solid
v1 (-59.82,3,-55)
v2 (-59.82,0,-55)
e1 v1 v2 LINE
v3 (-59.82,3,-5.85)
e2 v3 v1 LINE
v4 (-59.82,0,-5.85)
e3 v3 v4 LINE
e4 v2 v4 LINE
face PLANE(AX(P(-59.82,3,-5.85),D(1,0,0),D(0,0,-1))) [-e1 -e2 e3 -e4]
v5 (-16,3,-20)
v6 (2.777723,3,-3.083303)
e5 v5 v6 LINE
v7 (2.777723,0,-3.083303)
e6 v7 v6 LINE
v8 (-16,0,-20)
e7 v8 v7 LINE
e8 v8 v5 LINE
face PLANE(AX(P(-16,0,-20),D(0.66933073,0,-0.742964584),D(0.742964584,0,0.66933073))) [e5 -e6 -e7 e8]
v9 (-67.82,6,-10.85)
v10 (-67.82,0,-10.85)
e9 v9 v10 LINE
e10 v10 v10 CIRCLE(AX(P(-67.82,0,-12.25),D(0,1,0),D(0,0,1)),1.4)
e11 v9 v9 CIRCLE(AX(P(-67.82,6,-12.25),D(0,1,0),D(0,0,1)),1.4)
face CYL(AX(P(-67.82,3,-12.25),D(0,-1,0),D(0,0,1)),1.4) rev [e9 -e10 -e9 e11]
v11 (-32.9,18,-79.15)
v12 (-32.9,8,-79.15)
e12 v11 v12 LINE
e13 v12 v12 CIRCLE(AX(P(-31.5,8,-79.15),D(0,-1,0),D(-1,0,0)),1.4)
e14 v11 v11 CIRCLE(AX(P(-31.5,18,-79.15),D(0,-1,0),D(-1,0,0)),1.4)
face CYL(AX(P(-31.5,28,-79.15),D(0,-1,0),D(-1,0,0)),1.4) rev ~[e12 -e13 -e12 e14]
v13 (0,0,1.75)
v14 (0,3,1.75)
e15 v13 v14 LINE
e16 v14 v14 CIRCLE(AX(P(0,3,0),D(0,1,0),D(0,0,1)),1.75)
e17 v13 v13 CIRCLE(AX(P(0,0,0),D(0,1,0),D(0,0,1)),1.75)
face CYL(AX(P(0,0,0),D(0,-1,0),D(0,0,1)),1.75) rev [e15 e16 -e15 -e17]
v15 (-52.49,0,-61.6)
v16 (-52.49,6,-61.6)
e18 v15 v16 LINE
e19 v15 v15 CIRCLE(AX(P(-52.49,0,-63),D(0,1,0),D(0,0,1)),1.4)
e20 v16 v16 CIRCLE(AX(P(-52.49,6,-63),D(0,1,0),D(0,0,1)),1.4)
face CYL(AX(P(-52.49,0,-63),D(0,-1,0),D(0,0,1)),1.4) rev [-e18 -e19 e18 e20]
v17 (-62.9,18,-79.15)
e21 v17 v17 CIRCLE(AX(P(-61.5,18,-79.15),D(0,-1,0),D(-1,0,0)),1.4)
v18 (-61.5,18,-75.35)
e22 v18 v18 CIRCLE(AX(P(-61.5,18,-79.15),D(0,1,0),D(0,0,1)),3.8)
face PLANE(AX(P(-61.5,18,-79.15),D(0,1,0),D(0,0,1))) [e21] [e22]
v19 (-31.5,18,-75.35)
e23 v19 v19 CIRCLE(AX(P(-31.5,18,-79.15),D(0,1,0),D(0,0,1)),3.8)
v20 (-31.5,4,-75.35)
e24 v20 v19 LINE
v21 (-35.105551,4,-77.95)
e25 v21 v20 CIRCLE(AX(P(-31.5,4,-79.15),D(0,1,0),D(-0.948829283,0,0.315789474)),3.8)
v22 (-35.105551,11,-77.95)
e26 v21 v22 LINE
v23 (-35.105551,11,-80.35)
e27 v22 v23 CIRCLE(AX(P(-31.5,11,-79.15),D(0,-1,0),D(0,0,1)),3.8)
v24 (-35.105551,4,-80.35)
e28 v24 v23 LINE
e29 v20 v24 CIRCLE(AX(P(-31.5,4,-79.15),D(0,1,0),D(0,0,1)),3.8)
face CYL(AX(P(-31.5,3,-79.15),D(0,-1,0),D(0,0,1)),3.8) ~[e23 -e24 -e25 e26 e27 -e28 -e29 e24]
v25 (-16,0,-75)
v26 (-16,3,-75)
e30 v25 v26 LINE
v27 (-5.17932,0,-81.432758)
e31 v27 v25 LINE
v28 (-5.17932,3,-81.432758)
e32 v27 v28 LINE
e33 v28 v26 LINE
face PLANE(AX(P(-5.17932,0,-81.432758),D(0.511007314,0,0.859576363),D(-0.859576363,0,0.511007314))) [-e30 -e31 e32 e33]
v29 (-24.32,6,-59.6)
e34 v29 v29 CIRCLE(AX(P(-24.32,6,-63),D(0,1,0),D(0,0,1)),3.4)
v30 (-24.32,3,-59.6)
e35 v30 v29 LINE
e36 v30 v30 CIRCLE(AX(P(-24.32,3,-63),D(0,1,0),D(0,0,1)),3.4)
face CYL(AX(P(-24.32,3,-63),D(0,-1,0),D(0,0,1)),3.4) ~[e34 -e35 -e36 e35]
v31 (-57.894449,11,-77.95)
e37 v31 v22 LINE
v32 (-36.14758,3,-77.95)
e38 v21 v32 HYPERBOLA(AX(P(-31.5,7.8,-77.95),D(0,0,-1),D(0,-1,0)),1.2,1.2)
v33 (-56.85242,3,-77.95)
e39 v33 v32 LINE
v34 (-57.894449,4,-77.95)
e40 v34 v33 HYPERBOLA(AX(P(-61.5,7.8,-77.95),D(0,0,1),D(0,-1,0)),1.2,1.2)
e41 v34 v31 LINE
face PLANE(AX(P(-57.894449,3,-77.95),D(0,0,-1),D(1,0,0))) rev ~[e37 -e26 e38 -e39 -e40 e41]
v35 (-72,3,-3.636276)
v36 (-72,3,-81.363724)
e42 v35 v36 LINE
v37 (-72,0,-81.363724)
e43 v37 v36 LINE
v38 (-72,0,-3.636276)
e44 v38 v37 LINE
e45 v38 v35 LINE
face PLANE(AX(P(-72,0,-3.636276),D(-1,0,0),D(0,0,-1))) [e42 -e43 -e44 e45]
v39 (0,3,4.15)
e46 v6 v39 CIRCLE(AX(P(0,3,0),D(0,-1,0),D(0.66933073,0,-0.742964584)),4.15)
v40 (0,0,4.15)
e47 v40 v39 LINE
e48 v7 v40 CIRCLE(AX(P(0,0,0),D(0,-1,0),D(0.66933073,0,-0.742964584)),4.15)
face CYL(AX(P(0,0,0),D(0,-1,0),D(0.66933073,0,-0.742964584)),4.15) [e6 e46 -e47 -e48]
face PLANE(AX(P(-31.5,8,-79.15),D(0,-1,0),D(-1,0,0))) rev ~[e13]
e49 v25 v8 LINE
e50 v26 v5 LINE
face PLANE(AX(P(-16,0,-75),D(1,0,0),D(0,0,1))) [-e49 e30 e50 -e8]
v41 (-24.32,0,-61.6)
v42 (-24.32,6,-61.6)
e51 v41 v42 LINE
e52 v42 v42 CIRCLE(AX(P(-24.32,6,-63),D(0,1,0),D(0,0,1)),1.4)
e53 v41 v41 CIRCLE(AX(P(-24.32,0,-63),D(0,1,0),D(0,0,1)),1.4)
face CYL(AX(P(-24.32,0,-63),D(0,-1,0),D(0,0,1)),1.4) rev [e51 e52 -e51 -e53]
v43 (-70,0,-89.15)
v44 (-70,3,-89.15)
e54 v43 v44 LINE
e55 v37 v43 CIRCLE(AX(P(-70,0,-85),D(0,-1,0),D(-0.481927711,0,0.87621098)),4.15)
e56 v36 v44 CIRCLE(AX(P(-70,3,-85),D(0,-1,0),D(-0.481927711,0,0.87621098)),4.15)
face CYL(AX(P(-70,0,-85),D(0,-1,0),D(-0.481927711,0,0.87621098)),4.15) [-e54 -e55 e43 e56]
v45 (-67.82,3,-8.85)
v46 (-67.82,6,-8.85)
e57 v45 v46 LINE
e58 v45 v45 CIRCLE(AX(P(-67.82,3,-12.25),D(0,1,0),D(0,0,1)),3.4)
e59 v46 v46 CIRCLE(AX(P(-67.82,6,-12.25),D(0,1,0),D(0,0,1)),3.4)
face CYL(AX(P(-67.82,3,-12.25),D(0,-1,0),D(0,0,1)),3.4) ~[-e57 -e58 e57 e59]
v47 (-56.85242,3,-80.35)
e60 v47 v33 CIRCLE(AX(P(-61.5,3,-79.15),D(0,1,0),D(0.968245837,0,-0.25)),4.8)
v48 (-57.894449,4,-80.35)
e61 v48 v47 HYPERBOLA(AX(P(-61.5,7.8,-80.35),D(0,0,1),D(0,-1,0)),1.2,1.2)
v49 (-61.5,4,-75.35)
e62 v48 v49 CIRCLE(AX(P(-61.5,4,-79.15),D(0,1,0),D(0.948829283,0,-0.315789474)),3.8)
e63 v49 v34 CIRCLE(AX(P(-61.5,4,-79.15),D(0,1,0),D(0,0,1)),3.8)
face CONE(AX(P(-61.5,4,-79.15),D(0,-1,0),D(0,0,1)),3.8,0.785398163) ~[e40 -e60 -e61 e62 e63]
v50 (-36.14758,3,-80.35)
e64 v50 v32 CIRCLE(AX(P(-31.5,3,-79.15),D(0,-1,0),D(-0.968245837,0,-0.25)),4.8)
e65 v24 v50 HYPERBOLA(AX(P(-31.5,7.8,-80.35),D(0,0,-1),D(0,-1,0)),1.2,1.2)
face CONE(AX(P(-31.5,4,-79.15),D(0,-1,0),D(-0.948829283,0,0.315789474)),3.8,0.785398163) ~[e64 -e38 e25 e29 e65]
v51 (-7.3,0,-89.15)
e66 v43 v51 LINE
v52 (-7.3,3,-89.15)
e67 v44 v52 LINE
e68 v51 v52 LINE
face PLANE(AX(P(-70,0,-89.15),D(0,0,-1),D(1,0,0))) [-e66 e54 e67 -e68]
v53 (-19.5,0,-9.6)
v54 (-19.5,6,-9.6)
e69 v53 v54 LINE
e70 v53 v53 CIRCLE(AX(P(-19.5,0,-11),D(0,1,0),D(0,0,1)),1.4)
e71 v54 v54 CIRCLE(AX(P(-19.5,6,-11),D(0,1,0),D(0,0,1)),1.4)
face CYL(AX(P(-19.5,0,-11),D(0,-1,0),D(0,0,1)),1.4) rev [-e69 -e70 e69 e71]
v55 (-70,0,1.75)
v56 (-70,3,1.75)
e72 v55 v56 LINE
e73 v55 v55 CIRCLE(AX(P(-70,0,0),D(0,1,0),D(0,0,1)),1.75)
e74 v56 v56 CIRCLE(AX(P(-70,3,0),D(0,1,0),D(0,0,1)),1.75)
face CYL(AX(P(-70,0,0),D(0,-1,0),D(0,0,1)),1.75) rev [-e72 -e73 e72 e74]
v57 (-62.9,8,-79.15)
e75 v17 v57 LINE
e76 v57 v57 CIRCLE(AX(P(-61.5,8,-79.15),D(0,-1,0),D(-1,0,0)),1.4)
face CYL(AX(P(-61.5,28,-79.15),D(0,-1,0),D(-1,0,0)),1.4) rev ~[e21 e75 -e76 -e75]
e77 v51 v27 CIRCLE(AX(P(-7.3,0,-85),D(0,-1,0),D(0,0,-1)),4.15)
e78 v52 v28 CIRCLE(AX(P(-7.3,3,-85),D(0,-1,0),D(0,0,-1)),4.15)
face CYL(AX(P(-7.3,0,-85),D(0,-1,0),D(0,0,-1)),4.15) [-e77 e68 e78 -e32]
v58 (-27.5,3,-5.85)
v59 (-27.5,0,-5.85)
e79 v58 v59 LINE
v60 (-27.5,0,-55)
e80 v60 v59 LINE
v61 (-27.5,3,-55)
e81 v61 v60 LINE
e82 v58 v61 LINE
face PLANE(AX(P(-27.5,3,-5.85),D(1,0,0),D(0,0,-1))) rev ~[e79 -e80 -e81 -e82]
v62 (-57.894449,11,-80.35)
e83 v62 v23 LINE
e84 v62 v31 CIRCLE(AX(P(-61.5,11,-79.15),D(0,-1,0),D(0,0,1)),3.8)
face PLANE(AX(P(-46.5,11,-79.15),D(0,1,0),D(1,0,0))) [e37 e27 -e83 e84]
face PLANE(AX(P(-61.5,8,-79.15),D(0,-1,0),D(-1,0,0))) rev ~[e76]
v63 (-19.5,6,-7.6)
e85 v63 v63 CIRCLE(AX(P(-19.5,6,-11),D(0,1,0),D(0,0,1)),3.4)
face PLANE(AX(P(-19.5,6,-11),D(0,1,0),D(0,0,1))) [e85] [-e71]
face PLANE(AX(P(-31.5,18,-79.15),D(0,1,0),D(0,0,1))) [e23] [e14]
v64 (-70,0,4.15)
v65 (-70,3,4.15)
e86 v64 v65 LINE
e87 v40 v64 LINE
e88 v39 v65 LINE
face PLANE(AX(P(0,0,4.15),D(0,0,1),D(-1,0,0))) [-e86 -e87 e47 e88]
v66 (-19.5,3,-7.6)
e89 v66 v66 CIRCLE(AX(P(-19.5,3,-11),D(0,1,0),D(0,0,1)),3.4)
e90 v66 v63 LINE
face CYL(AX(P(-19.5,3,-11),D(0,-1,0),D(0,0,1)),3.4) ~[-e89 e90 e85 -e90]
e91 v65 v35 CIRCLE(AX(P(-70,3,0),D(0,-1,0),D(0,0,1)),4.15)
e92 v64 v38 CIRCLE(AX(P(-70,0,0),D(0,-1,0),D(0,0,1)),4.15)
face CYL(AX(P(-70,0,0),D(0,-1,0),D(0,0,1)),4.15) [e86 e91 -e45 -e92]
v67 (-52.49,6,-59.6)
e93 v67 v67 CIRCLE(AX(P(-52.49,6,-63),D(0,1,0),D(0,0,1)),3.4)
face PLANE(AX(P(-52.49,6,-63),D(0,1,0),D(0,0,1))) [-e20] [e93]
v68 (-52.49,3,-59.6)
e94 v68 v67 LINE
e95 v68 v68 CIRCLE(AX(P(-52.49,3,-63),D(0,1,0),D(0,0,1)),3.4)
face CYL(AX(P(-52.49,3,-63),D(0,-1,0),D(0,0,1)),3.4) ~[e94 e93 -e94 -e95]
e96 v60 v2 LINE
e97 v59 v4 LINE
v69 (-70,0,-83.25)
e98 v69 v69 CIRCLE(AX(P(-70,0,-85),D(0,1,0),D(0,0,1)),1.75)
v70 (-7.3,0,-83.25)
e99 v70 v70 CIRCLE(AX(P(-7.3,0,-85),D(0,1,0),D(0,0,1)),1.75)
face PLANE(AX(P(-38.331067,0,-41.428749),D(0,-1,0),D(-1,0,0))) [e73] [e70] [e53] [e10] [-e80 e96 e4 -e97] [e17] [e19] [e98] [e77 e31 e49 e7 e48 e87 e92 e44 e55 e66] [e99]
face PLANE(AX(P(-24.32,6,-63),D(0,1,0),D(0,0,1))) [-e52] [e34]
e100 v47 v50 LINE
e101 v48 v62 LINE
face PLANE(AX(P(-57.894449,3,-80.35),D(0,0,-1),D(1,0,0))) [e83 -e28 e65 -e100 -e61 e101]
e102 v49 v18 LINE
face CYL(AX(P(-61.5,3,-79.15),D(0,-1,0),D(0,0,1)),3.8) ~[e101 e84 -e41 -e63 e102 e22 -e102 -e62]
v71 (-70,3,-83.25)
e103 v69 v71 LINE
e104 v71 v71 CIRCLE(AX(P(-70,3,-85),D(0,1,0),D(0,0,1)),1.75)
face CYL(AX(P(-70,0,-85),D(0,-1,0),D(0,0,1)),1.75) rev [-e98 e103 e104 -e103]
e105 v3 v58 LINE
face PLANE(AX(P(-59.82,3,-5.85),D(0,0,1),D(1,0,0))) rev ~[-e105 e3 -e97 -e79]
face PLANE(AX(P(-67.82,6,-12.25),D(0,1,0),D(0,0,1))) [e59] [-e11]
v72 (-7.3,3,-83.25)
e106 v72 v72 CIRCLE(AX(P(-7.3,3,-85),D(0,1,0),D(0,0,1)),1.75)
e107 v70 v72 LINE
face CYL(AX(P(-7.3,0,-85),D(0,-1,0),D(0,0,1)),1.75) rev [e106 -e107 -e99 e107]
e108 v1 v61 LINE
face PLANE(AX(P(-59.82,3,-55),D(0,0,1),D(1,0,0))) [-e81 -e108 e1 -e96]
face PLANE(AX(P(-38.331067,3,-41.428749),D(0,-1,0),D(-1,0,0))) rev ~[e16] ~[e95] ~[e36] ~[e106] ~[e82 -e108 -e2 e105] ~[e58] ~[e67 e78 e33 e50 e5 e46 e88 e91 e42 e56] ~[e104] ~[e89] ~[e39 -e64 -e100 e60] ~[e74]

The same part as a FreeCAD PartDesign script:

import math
import FreeCAD as App
import Part
import Sketcher

V = App.Vector


def edges_at(feature, points):
    """Names of the edges that pass closest to the given points."""
    edges = feature.Shape.Edges
    near = lambda p: min(range(len(edges)), key=lambda i: edges[i].distToShape(Part.Vertex(*p))[0])
    return sorted({f"Edge{near(p) + 1}" for p in points})


def add_polygon(sketch, points):
    """Adds a closed chain of lines whose ends are joined by coincident constraints."""
    first, n = sketch.GeometryCount, len(points)
    for a, b in zip(points, points[1:] + points[:1]):
        sketch.addGeometry(Part.LineSegment(App.Vector(*a, 0), App.Vector(*b, 0)), False)
    for i in range(n):
        sketch.addConstraint(Sketcher.Constraint("Coincident", first + i, 2, first + (i + 1) % n, 1))

doc = App.newDocument("Part")
body = doc.addObject("PartDesign::Body", "Body")

sketch1 = body.newObject("Sketcher::SketchObject", "Sketch")
sketch1.AttachmentSupport = (doc.getObject("XZ_Plane"), [""])
sketch1.MapMode = "FlatFace"
sketch1.addGeometry([
    Part.LineSegment(V(-72, -81.4, 0), V(-72, -3.6, 0)),
    Part.ArcOfCircle(Part.Circle(V(-70, 0, 0), V(0, 0, 1), 4.2), math.radians(90), math.radians(241)),
    Part.LineSegment(V(-70, 4.2, 0), V(0, 4.2, 0)),
    Part.ArcOfCircle(Part.Circle(V(0, 0, 0), V(0, 0, 1), 4.2), math.radians(-48), math.radians(90)),
    Part.LineSegment(V(2.8, -3.1, 0), V(-16, -20, 0)),
    Part.LineSegment(V(-16, -20, 0), V(-16, -75, 0)),
    Part.LineSegment(V(-16, -75, 0), V(-5.2, -81.4, 0)),
    Part.ArcOfCircle(Part.Circle(V(-7.3, -85, 0), V(0, 0, 1), 4.2), math.radians(-90), math.radians(59)),
    Part.LineSegment(V(-7.3, -89.2, 0), V(-70, -89.2, 0)),
    Part.ArcOfCircle(Part.Circle(V(-70, -85, 0), V(0, 0, 1), 4.2), math.radians(119), math.radians(270)),
    Part.Circle(V(0, 0, 0), V(0, 0, 1), 1.8),
    Part.Circle(V(-19.5, -11, 0), V(0, 0, 1), 1.4),
    Part.Circle(V(-70, 0, 0), V(0, 0, 1), 1.8),
    Part.Circle(V(-67.8, -12.2, 0), V(0, 0, 1), 1.4),
    Part.Circle(V(-24.3, -63, 0), V(0, 0, 1), 1.4),
    Part.Circle(V(-7.3, -85, 0), V(0, 0, 1), 1.8),
    Part.Circle(V(-52.5, -63, 0), V(0, 0, 1), 1.4),
    Part.Circle(V(-70, -85, 0), V(0, 0, 1), 1.8),
], False)
sketch1.addConstraint([
    Sketcher.Constraint("Coincident", 0, 2, 1, 2),
    Sketcher.Constraint("Tangent", 1, 1, 2, 1),
    Sketcher.Constraint("Tangent", 2, 2, 3, 2),
    Sketcher.Constraint("Tangent", 3, 1, 4, 1),
    Sketcher.Constraint("Coincident", 4, 2, 5, 1),
    Sketcher.Constraint("Coincident", 5, 2, 6, 1),
    Sketcher.Constraint("Tangent", 6, 2, 7, 2),
    Sketcher.Constraint("Tangent", 7, 1, 8, 1),
    Sketcher.Constraint("Tangent", 8, 2, 9, 2),
    Sketcher.Constraint("Coincident", 9, 1, 0, 1),
    Sketcher.Constraint("Vertical", 0),
    Sketcher.Constraint("Horizontal", 2),
    Sketcher.Constraint("Vertical", 5),
    Sketcher.Constraint("Horizontal", 8),
    Sketcher.Constraint("Coincident", 3, 3, -1, 1),
    Sketcher.Constraint("Coincident", 10, 3, -1, 1),
    Sketcher.Constraint("Coincident", 12, 3, 1, 3),
    Sketcher.Constraint("Coincident", 15, 3, 7, 3),
    Sketcher.Constraint("Coincident", 17, 3, 9, 3),
    Sketcher.Constraint("Equal", 1, 3),
    Sketcher.Constraint("Equal", 3, 7),
    Sketcher.Constraint("Equal", 7, 9),
    Sketcher.Constraint("Equal", 10, 12),
    Sketcher.Constraint("Equal", 11, 13),
    Sketcher.Constraint("Equal", 13, 14),
    Sketcher.Constraint("Equal", 12, 15),
    Sketcher.Constraint("Equal", 14, 16),
    Sketcher.Constraint("Equal", 15, 17),
    Sketcher.Constraint("Horizontal", 14, 3, 16, 3),
    Sketcher.Constraint("Vertical", 1, 3, 9, 3),
    Sketcher.Constraint("Diameter", 10, 3.5),
    Sketcher.Constraint("Diameter", 11, 2.8),
    Sketcher.Constraint("DistanceX", 2, 1, 2, 2, 70.0),
    Sketcher.Constraint("DistanceY", 5, 2, 5, 1, 55.0),
    Sketcher.Constraint("Radius", 1, 4.15),
    Sketcher.Constraint("DistanceX", 8, 2, 8, 1, 62.7),
    Sketcher.Constraint("DistanceY", 7, 3, -1, 1, 85.0),
    Sketcher.Constraint("DistanceY", 11, 3, -1, 1, 11.0),
    Sketcher.Constraint("DistanceY", 14, 3, -1, 1, 63.0),
    Sketcher.Constraint("DistanceX", 0, 2, -1, 1, 72.0),
    Sketcher.Constraint("DistanceX", 4, 2, -1, 1, 16.0),
    Sketcher.Constraint("DistanceY", 4, 2, -1, 1, 20.0),
    Sketcher.Constraint("DistanceX", 11, 3, -1, 1, 19.5),
    Sketcher.Constraint("DistanceX", 13, 3, 14, 3, 43.5),
    Sketcher.Constraint("DistanceY", 13, 3, 1, 1, 16.4),
    Sketcher.Constraint("DistanceX", 13, 3, -1, 1, 67.82),
    Sketcher.Constraint("DistanceX", 16, 3, -1, 1, 52.49),
])
pad1 = body.newObject("PartDesign::Pad", "Pad")
pad1.Profile = sketch1
pad1.Length = 3
pad1.Reversed = True

sketch2 = body.newObject("Sketcher::SketchObject", "Sketch001")
sketch2.AttachmentSupport = (doc.getObject("XZ_Plane"), [""])
sketch2.MapMode = "FlatFace"
sketch2.AttachmentOffset = App.Placement(V(0, 0, -3), App.Rotation())
sketch2.addGeometry([
    Part.Circle(V(-67.8, -12.2, 0), V(0, 0, 1), 3.4),
    Part.Circle(V(-67.8, -12.2, 0), V(0, 0, 1), 1.4),
    Part.Circle(V(-19.5, -11, 0), V(0, 0, 1), 3.4),
    Part.Circle(V(-19.5, -11, 0), V(0, 0, 1), 1.4),
    Part.Circle(V(-24.3, -63, 0), V(0, 0, 1), 3.4),
    Part.Circle(V(-24.3, -63, 0), V(0, 0, 1), 1.4),
    Part.Circle(V(-52.5, -63, 0), V(0, 0, 1), 3.4),
    Part.Circle(V(-52.5, -63, 0), V(0, 0, 1), 1.4),
], False)
sketch2.addConstraint([
    Sketcher.Constraint("Coincident", 1, 3, 0, 3),
    Sketcher.Constraint("Coincident", 3, 3, 2, 3),
    Sketcher.Constraint("Coincident", 5, 3, 4, 3),
    Sketcher.Constraint("Coincident", 7, 3, 6, 3),
    Sketcher.Constraint("Equal", 0, 2),
    Sketcher.Constraint("Equal", 1, 3),
    Sketcher.Constraint("Equal", 2, 4),
    Sketcher.Constraint("Equal", 3, 5),
    Sketcher.Constraint("Equal", 4, 6),
    Sketcher.Constraint("Equal", 5, 7),
    Sketcher.Constraint("Horizontal", 5, 3, 6, 3),
    Sketcher.Constraint("Diameter", 0, 6.8),
    Sketcher.Constraint("Diameter", 1, 2.8),
    Sketcher.Constraint("DistanceY", 2, 3, -1, 1, 11.0),
    Sketcher.Constraint("DistanceY", 4, 3, -1, 1, 63.0),
    Sketcher.Constraint("DistanceX", 2, 3, -1, 1, 19.5),
    Sketcher.Constraint("DistanceX", 0, 3, 4, 3, 43.5),
    Sketcher.Constraint("DistanceX", 0, 3, -1, 1, 67.82),
    Sketcher.Constraint("DistanceY", 0, 3, -1, 1, 12.25),
    Sketcher.Constraint("DistanceX", 6, 3, -1, 1, 52.49),
])
pad2 = body.newObject("PartDesign::Pad", "Pad001")
pad2.Profile = sketch2
pad2.Length = 3
pad2.Reversed = True

sketch3 = body.newObject("Sketcher::SketchObject", "Sketch002")
sketch3.AttachmentSupport = (doc.getObject("XZ_Plane"), [""])
sketch3.MapMode = "FlatFace"
sketch3.AttachmentOffset = App.Placement(V(0, 0, -3), App.Rotation())
sketch3.addGeometry([
    Part.Circle(V(-61.5, -79.2, 0), V(0, 0, 1), 3.8),
    Part.Circle(V(-31.5, -79.2, 0), V(0, 0, 1), 3.8),
], False)
sketch3.addConstraint([
    Sketcher.Constraint("Equal", 0, 1),
    Sketcher.Constraint("Horizontal", 0, 3, 1, 3),
    Sketcher.Constraint("Diameter", 0, 7.6),
    Sketcher.Constraint("DistanceX", 0, 3, 1, 3, 30.0),
    Sketcher.Constraint("DistanceX", 0, 3, -1, 1, 61.5),
    Sketcher.Constraint("DistanceY", 0, 3, -1, 1, 79.15),
])
pad3 = body.newObject("PartDesign::Pad", "Pad002")
pad3.Profile = sketch3
pad3.Length = 15
pad3.Reversed = True

sketch4 = body.newObject("Sketcher::SketchObject", "Sketch003")
sketch4.AttachmentSupport = (doc.getObject("XZ_Plane"), [""])
sketch4.MapMode = "FlatFace"
sketch4.AttachmentOffset = App.Placement(V(0, 0, -18), App.Rotation())
sketch4.addGeometry([
    Part.Circle(V(-61.5, -79.2, 0), V(0, 0, 1), 1.4),
    Part.Circle(V(-31.5, -79.2, 0), V(0, 0, 1), 1.4),
], False)
sketch4.addConstraint([
    Sketcher.Constraint("Equal", 0, 1),
    Sketcher.Constraint("Horizontal", 0, 3, 1, 3),
    Sketcher.Constraint("Diameter", 0, 2.8),
    Sketcher.Constraint("DistanceX", 0, 3, 1, 3, 30.0),
    Sketcher.Constraint("DistanceX", 0, 3, -1, 1, 61.5),
    Sketcher.Constraint("DistanceY", 0, 3, -1, 1, 79.15),
])
doc.recompute()
hole = body.newObject("PartDesign::Hole", "Hole")
hole.Profile = sketch4
hole.ThreadType = "None"
hole.Diameter = 2.8
hole.DepthType = "Dimension"
hole.Depth = 10
hole.DrillPoint = "Flat"
hole.Reversed = True

sketch5 = body.newObject("Sketcher::SketchObject", "Sketch004")
sketch5.AttachmentSupport = (doc.getObject("XZ_Plane"), [""])
sketch5.MapMode = "FlatFace"
sketch5.AttachmentOffset = App.Placement(V(0, 0, -3), App.Rotation())
add_polygon(sketch5, [(-57.9, -80.3), (-57.9, -78), (-35.1, -78), (-35.1, -80.3)])
sketch5.addConstraint([
    Sketcher.Constraint("Vertical", 0),
    Sketcher.Constraint("Horizontal", 1),
    Sketcher.Constraint("Vertical", 2),
    Sketcher.Constraint("Horizontal", 3),
    Sketcher.Constraint("DistanceY", 0, 1, 0, 2, 2.4),
    Sketcher.Constraint("DistanceY", 0, 2, -1, 1, 77.95),
    Sketcher.Constraint("DistanceX", 1, 1, 1, 2, 22.788897),
    Sketcher.Constraint("DistanceX", 0, 2, -1, 1, 57.894449),
])
pad4 = body.newObject("PartDesign::Pad", "Pad003")
pad4.Profile = sketch5
pad4.Length = 8
pad4.Reversed = True
doc.recompute()

chamfer = body.newObject("PartDesign::Chamfer", "Chamfer")
chamfer.Base = (pad4, edges_at(pad4, [(-28.418, 3, -81.373), (-64.582, 3, -81.373)]))
chamfer.Size = 1

sketch6 = body.newObject("Sketcher::SketchObject", "Sketch005")
sketch6.AttachmentSupport = (doc.getObject("XZ_Plane"), [""])
sketch6.MapMode = "FlatFace"
sketch6.AttachmentOffset = App.Placement(V(0, 0, -3), App.Rotation())
add_polygon(sketch6, [(-60, -55), (-60, -6), (-28, -6), (-28, -55)])
sketch6.addConstraint([
    Sketcher.Constraint("Vertical", 0),
    Sketcher.Constraint("Horizontal", 1),
    Sketcher.Constraint("Vertical", 2),
    Sketcher.Constraint("Horizontal", 3),
    Sketcher.Constraint("DistanceY", 2, 2, -1, 1, 55.0),
    Sketcher.Constraint("DistanceX", 1, 1, 1, 2, 32.32),
    Sketcher.Constraint("DistanceY", 0, 1, 0, 2, 49.15),
    Sketcher.Constraint("DistanceX", 1, 2, -1, 1, 27.5),
])
pocket1 = body.newObject("PartDesign::Pocket", "Pocket")
pocket1.Profile = sketch6
pocket1.Type = "ThroughAll"
pocket1.Reversed = True

doc.recompute()
